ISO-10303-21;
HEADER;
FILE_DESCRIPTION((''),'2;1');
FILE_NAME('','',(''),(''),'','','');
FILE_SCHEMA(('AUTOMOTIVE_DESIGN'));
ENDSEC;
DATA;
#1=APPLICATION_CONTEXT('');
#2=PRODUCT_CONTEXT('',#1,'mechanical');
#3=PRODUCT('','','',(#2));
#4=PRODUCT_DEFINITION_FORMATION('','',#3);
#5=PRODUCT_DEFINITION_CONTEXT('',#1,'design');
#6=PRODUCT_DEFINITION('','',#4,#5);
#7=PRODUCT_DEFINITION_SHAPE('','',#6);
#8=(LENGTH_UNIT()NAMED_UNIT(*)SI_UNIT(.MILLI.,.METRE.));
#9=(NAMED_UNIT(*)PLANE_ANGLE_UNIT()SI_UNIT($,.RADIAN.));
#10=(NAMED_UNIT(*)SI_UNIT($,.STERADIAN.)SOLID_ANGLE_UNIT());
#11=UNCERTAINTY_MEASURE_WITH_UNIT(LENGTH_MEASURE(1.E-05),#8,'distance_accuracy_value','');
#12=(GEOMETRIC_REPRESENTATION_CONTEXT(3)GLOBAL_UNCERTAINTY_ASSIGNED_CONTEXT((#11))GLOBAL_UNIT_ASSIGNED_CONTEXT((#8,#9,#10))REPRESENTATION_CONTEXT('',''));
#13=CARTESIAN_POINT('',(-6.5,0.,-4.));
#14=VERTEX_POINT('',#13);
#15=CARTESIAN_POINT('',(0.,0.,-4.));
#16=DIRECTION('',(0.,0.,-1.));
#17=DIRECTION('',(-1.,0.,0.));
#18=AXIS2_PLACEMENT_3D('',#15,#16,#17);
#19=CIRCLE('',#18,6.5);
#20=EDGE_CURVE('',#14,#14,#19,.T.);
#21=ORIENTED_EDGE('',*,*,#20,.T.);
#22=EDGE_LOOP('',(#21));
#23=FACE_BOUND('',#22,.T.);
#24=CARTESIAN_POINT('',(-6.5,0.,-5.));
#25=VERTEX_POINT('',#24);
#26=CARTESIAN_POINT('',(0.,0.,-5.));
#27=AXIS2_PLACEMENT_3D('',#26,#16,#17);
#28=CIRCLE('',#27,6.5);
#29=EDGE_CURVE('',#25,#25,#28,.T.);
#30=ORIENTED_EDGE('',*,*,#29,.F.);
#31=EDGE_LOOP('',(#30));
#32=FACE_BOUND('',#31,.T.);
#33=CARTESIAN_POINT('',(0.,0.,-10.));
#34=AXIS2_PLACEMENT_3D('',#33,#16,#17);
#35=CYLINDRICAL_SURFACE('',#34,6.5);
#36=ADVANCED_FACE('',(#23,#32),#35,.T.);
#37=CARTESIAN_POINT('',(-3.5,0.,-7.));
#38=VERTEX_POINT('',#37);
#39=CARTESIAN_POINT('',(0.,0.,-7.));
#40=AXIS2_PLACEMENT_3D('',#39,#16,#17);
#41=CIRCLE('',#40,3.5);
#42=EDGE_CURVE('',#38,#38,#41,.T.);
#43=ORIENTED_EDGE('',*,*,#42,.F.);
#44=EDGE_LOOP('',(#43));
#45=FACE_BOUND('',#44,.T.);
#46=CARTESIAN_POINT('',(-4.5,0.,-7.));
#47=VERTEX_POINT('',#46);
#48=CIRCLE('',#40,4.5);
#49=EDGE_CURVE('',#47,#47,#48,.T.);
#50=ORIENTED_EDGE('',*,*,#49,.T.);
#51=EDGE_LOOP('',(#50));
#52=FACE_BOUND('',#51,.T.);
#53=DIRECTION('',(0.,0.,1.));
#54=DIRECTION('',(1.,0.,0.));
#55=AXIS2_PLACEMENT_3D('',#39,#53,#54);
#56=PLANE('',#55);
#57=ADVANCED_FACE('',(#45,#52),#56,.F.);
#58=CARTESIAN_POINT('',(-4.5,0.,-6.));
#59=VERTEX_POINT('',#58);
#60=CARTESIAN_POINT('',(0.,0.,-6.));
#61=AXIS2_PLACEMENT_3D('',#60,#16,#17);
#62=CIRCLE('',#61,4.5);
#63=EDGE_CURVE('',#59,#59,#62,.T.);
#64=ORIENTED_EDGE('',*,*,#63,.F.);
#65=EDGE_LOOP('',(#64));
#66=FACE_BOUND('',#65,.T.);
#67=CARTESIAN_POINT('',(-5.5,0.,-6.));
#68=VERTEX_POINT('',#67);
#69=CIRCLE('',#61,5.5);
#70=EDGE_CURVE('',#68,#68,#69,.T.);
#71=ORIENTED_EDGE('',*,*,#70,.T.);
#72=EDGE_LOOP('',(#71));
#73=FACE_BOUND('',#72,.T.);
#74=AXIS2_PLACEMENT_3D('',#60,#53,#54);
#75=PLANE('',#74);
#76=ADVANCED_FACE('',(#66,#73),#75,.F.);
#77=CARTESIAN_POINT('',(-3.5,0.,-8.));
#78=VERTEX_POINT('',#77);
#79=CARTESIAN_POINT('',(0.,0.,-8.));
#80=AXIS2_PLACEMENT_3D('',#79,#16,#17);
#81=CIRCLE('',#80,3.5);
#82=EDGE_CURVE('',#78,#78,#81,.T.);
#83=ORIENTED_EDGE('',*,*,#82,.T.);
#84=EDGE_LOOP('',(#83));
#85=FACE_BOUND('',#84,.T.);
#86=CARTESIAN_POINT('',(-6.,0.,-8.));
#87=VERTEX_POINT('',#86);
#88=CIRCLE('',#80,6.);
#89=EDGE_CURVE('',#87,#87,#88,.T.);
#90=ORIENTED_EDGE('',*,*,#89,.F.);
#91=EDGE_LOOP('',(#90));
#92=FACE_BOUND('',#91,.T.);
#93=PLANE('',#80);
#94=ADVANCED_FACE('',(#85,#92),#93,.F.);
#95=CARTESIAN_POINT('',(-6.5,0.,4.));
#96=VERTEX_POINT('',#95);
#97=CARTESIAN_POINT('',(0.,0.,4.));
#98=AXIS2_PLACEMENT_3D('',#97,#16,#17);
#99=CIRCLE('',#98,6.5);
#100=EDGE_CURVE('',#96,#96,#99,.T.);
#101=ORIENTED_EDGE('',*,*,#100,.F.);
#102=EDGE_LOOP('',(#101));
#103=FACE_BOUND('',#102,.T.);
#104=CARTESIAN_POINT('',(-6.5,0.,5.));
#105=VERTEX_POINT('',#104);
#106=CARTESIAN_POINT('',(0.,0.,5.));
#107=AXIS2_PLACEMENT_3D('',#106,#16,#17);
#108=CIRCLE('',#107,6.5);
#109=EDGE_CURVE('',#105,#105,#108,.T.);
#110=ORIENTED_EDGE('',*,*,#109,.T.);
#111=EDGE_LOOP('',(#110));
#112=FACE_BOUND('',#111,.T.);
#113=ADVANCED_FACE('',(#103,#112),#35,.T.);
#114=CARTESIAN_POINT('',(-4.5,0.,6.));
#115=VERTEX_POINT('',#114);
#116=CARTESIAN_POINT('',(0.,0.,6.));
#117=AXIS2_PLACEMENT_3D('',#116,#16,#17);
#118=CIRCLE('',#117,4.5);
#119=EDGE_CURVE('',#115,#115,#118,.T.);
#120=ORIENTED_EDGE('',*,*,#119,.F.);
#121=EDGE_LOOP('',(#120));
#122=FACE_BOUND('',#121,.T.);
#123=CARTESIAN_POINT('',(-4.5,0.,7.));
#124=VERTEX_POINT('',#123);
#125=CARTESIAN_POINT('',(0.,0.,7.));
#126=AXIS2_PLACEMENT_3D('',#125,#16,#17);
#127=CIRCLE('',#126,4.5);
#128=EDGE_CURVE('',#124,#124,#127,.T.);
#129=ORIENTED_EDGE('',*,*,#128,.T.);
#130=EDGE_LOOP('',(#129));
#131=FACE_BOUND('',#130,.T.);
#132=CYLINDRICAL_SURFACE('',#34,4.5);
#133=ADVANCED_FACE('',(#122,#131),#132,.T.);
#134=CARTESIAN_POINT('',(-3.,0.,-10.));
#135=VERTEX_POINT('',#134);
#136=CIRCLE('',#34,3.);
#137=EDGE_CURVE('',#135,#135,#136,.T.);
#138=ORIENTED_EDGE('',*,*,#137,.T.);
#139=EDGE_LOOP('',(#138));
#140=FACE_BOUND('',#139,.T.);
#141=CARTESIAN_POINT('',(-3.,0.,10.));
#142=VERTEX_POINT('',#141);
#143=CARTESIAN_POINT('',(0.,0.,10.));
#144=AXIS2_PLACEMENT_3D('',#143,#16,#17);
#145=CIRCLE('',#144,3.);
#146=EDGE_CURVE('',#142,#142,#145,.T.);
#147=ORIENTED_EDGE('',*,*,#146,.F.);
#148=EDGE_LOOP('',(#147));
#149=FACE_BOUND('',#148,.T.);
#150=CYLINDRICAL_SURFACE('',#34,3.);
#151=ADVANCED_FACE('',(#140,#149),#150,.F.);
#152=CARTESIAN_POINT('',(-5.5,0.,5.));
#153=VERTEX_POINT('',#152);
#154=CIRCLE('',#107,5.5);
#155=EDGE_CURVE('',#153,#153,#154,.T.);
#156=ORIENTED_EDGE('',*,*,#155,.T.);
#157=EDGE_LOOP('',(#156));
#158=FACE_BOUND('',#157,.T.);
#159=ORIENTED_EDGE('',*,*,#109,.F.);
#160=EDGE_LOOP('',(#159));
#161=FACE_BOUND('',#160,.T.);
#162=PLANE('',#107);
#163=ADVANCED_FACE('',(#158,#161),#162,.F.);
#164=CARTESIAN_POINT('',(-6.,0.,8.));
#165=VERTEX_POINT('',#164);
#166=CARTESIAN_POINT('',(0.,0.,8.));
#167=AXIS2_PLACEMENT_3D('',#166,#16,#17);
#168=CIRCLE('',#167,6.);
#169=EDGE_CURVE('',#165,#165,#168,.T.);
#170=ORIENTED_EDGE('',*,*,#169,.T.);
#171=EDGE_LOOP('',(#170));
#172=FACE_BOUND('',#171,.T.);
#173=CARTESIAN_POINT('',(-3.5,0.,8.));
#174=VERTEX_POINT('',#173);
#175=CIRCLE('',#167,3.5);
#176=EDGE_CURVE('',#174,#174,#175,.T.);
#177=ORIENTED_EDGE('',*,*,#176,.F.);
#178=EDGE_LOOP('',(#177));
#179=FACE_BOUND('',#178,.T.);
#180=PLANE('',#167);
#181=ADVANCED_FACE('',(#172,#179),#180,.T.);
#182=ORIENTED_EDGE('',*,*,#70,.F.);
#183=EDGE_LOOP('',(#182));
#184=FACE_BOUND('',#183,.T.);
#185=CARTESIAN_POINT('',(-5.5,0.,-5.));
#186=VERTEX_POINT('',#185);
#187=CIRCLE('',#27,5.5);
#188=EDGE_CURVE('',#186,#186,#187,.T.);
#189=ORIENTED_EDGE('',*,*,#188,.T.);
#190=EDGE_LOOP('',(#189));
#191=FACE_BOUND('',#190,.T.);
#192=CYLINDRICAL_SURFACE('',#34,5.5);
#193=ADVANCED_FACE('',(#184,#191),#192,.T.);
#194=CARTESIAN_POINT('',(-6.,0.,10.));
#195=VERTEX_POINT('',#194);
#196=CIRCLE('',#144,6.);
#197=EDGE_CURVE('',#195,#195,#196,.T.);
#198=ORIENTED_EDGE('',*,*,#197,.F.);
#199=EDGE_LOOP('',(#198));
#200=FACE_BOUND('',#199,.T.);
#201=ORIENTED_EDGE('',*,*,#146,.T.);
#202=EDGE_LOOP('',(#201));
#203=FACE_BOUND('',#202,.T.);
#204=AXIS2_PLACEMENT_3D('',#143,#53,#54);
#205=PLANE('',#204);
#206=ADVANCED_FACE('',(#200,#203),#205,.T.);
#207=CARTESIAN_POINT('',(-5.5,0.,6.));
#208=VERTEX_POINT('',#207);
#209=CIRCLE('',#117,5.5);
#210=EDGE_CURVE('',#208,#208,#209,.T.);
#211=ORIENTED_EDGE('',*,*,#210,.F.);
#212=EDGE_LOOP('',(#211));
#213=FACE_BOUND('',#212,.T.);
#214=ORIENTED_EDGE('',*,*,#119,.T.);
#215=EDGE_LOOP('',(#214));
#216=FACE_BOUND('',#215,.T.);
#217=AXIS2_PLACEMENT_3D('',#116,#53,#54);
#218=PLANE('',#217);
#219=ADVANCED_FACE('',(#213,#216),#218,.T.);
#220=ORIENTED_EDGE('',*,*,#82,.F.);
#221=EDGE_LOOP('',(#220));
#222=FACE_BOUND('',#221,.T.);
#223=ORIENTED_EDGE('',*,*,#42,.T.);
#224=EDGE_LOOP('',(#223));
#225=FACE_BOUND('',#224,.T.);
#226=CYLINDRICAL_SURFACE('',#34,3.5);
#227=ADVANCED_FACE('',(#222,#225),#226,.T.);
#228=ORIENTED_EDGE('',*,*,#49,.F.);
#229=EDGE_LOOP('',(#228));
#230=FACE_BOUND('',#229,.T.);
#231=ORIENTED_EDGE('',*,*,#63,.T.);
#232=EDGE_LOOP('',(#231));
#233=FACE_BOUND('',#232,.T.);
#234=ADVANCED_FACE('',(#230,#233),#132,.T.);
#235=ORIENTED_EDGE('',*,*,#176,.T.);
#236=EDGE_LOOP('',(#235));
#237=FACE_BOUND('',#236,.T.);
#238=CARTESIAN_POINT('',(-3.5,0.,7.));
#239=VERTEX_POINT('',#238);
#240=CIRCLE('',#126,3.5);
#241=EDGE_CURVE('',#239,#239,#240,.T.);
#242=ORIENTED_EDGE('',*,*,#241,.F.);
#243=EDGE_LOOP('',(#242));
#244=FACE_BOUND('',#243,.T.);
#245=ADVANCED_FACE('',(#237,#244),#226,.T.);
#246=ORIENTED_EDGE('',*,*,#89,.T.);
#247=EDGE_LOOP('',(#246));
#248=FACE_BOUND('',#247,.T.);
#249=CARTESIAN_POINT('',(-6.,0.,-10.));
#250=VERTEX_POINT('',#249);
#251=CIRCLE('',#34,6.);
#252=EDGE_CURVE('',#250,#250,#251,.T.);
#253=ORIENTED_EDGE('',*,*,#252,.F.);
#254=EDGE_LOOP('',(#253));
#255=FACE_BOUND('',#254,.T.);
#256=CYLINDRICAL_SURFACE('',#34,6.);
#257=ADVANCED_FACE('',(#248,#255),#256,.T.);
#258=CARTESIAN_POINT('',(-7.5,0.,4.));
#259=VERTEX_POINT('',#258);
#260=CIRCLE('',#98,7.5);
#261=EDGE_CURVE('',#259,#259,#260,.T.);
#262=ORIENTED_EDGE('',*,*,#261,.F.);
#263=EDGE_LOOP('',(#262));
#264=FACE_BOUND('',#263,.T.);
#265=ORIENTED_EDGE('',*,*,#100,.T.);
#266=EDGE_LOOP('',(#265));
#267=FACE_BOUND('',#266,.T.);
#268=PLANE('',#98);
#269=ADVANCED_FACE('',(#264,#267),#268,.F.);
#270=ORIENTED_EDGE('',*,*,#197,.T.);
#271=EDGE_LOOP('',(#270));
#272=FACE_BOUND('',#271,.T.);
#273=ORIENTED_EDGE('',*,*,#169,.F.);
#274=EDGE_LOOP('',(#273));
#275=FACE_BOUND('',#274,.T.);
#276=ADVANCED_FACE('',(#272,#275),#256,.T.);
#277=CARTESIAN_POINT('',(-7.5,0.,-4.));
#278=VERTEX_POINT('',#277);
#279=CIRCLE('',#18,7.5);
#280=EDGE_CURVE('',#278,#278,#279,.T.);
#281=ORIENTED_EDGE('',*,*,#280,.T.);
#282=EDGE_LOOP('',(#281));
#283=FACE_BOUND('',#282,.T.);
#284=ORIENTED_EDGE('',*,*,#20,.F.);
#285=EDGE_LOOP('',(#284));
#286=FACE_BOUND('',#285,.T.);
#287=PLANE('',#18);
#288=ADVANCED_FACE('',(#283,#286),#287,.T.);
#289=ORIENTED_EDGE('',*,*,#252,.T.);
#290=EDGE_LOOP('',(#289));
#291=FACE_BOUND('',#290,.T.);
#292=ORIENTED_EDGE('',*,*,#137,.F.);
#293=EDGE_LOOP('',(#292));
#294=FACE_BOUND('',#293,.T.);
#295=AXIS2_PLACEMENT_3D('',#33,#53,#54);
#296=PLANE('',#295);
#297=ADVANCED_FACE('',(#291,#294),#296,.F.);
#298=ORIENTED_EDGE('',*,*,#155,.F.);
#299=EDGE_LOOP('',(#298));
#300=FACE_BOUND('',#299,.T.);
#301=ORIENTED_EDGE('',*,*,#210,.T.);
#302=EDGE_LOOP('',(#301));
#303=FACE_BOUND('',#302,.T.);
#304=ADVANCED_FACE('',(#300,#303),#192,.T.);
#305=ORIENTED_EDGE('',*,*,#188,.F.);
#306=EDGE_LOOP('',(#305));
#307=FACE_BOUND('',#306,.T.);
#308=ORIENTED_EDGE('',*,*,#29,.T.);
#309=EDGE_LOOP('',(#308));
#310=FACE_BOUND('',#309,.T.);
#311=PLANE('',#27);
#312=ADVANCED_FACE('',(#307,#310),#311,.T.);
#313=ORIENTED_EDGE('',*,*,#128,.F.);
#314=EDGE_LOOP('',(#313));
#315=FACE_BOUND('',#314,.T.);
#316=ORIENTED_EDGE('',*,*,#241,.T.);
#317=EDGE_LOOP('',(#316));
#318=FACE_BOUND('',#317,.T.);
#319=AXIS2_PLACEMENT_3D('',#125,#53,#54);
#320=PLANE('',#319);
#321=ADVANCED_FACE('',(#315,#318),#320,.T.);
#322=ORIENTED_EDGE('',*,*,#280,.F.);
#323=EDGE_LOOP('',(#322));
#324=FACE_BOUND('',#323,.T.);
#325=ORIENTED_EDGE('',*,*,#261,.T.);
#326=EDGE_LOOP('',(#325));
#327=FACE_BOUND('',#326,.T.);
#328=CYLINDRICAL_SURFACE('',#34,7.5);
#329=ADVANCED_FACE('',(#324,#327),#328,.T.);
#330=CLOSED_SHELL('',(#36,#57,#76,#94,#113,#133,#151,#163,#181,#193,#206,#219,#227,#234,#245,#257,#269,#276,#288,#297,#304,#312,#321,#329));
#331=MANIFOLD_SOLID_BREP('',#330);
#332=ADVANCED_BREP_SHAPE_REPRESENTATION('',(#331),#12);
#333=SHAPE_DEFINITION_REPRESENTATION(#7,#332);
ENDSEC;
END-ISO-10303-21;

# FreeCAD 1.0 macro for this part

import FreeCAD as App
import Part
import Sketcher
from FreeCAD import Vector

doc = App.newDocument("Part")
body = doc.addObject("PartDesign::Body", "Body")

sketch1 = doc.addObject("Sketcher::SketchObject", "Sketch")
body.addObject(sketch1)
sketch1.AttachmentSupport = (doc.XZ_Plane, [""])
sketch1.MapMode = "FlatFace"
sketch1.addGeometry([
    Part.LineSegment(Vector(5.5, -5, 0), Vector(5.5, -6, 0)),
    Part.LineSegment(Vector(5.5, -6, 0), Vector(4.5, -6, 0)),
    Part.LineSegment(Vector(4.5, -6, 0), Vector(4.5, -7, 0)),
    Part.LineSegment(Vector(4.5, -7, 0), Vector(3.5, -7, 0)),
    Part.LineSegment(Vector(3.5, -7, 0), Vector(3.5, -8, 0)),
    Part.LineSegment(Vector(3.5, -8, 0), Vector(6, -8, 0)),
    Part.LineSegment(Vector(6, -8, 0), Vector(6, -10, 0)),
    Part.LineSegment(Vector(6, -10, 0), Vector(3, -10, 0)),
    Part.LineSegment(Vector(3, -10, 0), Vector(3, 10, 0)),
    Part.LineSegment(Vector(3, 10, 0), Vector(6, 10, 0)),
    Part.LineSegment(Vector(6, 10, 0), Vector(6, 8, 0)),
    Part.LineSegment(Vector(6, 8, 0), Vector(3.5, 8, 0)),
    Part.LineSegment(Vector(3.5, 8, 0), Vector(3.5, 7, 0)),
    Part.LineSegment(Vector(3.5, 7, 0), Vector(4.5, 7, 0)),
    Part.LineSegment(Vector(4.5, 7, 0), Vector(4.5, 6, 0)),
    Part.LineSegment(Vector(4.5, 6, 0), Vector(5.5, 6, 0)),
    Part.LineSegment(Vector(5.5, 6, 0), Vector(5.5, 5, 0)),
    Part.LineSegment(Vector(5.5, 5, 0), Vector(6.5, 5, 0)),
    Part.LineSegment(Vector(6.5, 5, 0), Vector(6.5, 4, 0)),
    Part.LineSegment(Vector(6.5, 4, 0), Vector(7.5, 4, 0)),
    Part.LineSegment(Vector(7.5, 4, 0), Vector(7.5, -4, 0)),
    Part.LineSegment(Vector(7.5, -4, 0), Vector(6.5, -4, 0)),
    Part.LineSegment(Vector(6.5, -4, 0), Vector(6.5, -5, 0)),
    Part.LineSegment(Vector(6.5, -5, 0), Vector(5.5, -5, 0)),
], False)
sketch1.addConstraint([
    Sketcher.Constraint("Coincident", 0, 2, 1, 1),
    Sketcher.Constraint("Coincident", 1, 2, 2, 1),
    Sketcher.Constraint("Coincident", 2, 2, 3, 1),
    Sketcher.Constraint("Coincident", 3, 2, 4, 1),
    Sketcher.Constraint("Coincident", 4, 2, 5, 1),
    Sketcher.Constraint("Coincident", 5, 2, 6, 1),
    Sketcher.Constraint("Coincident", 6, 2, 7, 1),
    Sketcher.Constraint("Coincident", 7, 2, 8, 1),
    Sketcher.Constraint("Coincident", 8, 2, 9, 1),
    Sketcher.Constraint("Coincident", 9, 2, 10, 1),
    Sketcher.Constraint("Coincident", 10, 2, 11, 1),
    Sketcher.Constraint("Coincident", 11, 2, 12, 1),
    Sketcher.Constraint("Coincident", 12, 2, 13, 1),
    Sketcher.Constraint("Coincident", 13, 2, 14, 1),
    Sketcher.Constraint("Coincident", 14, 2, 15, 1),
    Sketcher.Constraint("Coincident", 15, 2, 16, 1),
    Sketcher.Constraint("Coincident", 16, 2, 17, 1),
    Sketcher.Constraint("Coincident", 17, 2, 18, 1),
    Sketcher.Constraint("Coincident", 18, 2, 19, 1),
    Sketcher.Constraint("Coincident", 19, 2, 20, 1),
    Sketcher.Constraint("Coincident", 20, 2, 21, 1),
    Sketcher.Constraint("Coincident", 21, 2, 22, 1),
    Sketcher.Constraint("Coincident", 22, 2, 23, 1),
    Sketcher.Constraint("Coincident", 23, 2, 0, 1),
    Sketcher.Constraint("Vertical", 0),
    Sketcher.Constraint("Horizontal", 1),
    Sketcher.Constraint("Vertical", 2),
    Sketcher.Constraint("Horizontal", 3),
    Sketcher.Constraint("Vertical", 4),
    Sketcher.Constraint("Horizontal", 5),
    Sketcher.Constraint("Vertical", 6),
    Sketcher.Constraint("Horizontal", 7),
    Sketcher.Constraint("Vertical", 8),
    Sketcher.Constraint("Horizontal", 9),
    Sketcher.Constraint("Vertical", 10),
    Sketcher.Constraint("Horizontal", 11),
    Sketcher.Constraint("Vertical", 12),
    Sketcher.Constraint("Horizontal", 13),
    Sketcher.Constraint("Vertical", 14),
    Sketcher.Constraint("Horizontal", 15),
    Sketcher.Constraint("Vertical", 16),
    Sketcher.Constraint("Horizontal", 17),
    Sketcher.Constraint("Vertical", 18),
    Sketcher.Constraint("Horizontal", 19),
    Sketcher.Constraint("Vertical", 20),
    Sketcher.Constraint("Horizontal", 21),
    Sketcher.Constraint("Vertical", 22),
    Sketcher.Constraint("Horizontal", 23),
    Sketcher.Constraint("Symmetric", 6, 2, 9, 2, -1),
    Sketcher.Constraint("Symmetric", 4, 2, 11, 2, -1),
    Sketcher.Constraint("Symmetric", 2, 2, 13, 2, -1),
    Sketcher.Constraint("Symmetric", 0, 2, 15, 2, -1),
    Sketcher.Constraint("Symmetric", 18, 2, 21, 2, -1),
    Sketcher.Constraint("Equal", 1, 3),
    Sketcher.Constraint("Equal", 15, 17),
    Sketcher.Constraint("Equal", 17, 19),
    Sketcher.Constraint("Equal", 23, 0),
    Sketcher.Constraint("Equal", 0, 2),
    Sketcher.Constraint("Equal", 2, 4),
    Sketcher.Constraint("Equal", 14, 16),
    Sketcher.Constraint("Equal", 16, 18),
    Sketcher.Constraint("DistanceX", 1, 2, 1, 1, 1.0),
    Sketcher.Constraint("DistanceX", 7, 2, 7, 1, 3.0),
    Sketcher.Constraint("DistanceY", 6, 2, 6, 1, 2.0),
    Sketcher.Constraint("DistanceY", 8, 1, 8, 2, 20.0),
    Sketcher.Constraint("DistanceX", 5, 1, 5, 2, 2.5),
    Sketcher.Constraint("DistanceX", -1, 1, 5, 2, 6.0),
])
revolution = doc.addObject("PartDesign::Revolution", "Revolution")
body.addObject(revolution)
revolution.Profile = sketch1
revolution.ReferenceAxis = (sketch1, ["V_Axis"])
revolution.Angle = 360

doc.recompute()
